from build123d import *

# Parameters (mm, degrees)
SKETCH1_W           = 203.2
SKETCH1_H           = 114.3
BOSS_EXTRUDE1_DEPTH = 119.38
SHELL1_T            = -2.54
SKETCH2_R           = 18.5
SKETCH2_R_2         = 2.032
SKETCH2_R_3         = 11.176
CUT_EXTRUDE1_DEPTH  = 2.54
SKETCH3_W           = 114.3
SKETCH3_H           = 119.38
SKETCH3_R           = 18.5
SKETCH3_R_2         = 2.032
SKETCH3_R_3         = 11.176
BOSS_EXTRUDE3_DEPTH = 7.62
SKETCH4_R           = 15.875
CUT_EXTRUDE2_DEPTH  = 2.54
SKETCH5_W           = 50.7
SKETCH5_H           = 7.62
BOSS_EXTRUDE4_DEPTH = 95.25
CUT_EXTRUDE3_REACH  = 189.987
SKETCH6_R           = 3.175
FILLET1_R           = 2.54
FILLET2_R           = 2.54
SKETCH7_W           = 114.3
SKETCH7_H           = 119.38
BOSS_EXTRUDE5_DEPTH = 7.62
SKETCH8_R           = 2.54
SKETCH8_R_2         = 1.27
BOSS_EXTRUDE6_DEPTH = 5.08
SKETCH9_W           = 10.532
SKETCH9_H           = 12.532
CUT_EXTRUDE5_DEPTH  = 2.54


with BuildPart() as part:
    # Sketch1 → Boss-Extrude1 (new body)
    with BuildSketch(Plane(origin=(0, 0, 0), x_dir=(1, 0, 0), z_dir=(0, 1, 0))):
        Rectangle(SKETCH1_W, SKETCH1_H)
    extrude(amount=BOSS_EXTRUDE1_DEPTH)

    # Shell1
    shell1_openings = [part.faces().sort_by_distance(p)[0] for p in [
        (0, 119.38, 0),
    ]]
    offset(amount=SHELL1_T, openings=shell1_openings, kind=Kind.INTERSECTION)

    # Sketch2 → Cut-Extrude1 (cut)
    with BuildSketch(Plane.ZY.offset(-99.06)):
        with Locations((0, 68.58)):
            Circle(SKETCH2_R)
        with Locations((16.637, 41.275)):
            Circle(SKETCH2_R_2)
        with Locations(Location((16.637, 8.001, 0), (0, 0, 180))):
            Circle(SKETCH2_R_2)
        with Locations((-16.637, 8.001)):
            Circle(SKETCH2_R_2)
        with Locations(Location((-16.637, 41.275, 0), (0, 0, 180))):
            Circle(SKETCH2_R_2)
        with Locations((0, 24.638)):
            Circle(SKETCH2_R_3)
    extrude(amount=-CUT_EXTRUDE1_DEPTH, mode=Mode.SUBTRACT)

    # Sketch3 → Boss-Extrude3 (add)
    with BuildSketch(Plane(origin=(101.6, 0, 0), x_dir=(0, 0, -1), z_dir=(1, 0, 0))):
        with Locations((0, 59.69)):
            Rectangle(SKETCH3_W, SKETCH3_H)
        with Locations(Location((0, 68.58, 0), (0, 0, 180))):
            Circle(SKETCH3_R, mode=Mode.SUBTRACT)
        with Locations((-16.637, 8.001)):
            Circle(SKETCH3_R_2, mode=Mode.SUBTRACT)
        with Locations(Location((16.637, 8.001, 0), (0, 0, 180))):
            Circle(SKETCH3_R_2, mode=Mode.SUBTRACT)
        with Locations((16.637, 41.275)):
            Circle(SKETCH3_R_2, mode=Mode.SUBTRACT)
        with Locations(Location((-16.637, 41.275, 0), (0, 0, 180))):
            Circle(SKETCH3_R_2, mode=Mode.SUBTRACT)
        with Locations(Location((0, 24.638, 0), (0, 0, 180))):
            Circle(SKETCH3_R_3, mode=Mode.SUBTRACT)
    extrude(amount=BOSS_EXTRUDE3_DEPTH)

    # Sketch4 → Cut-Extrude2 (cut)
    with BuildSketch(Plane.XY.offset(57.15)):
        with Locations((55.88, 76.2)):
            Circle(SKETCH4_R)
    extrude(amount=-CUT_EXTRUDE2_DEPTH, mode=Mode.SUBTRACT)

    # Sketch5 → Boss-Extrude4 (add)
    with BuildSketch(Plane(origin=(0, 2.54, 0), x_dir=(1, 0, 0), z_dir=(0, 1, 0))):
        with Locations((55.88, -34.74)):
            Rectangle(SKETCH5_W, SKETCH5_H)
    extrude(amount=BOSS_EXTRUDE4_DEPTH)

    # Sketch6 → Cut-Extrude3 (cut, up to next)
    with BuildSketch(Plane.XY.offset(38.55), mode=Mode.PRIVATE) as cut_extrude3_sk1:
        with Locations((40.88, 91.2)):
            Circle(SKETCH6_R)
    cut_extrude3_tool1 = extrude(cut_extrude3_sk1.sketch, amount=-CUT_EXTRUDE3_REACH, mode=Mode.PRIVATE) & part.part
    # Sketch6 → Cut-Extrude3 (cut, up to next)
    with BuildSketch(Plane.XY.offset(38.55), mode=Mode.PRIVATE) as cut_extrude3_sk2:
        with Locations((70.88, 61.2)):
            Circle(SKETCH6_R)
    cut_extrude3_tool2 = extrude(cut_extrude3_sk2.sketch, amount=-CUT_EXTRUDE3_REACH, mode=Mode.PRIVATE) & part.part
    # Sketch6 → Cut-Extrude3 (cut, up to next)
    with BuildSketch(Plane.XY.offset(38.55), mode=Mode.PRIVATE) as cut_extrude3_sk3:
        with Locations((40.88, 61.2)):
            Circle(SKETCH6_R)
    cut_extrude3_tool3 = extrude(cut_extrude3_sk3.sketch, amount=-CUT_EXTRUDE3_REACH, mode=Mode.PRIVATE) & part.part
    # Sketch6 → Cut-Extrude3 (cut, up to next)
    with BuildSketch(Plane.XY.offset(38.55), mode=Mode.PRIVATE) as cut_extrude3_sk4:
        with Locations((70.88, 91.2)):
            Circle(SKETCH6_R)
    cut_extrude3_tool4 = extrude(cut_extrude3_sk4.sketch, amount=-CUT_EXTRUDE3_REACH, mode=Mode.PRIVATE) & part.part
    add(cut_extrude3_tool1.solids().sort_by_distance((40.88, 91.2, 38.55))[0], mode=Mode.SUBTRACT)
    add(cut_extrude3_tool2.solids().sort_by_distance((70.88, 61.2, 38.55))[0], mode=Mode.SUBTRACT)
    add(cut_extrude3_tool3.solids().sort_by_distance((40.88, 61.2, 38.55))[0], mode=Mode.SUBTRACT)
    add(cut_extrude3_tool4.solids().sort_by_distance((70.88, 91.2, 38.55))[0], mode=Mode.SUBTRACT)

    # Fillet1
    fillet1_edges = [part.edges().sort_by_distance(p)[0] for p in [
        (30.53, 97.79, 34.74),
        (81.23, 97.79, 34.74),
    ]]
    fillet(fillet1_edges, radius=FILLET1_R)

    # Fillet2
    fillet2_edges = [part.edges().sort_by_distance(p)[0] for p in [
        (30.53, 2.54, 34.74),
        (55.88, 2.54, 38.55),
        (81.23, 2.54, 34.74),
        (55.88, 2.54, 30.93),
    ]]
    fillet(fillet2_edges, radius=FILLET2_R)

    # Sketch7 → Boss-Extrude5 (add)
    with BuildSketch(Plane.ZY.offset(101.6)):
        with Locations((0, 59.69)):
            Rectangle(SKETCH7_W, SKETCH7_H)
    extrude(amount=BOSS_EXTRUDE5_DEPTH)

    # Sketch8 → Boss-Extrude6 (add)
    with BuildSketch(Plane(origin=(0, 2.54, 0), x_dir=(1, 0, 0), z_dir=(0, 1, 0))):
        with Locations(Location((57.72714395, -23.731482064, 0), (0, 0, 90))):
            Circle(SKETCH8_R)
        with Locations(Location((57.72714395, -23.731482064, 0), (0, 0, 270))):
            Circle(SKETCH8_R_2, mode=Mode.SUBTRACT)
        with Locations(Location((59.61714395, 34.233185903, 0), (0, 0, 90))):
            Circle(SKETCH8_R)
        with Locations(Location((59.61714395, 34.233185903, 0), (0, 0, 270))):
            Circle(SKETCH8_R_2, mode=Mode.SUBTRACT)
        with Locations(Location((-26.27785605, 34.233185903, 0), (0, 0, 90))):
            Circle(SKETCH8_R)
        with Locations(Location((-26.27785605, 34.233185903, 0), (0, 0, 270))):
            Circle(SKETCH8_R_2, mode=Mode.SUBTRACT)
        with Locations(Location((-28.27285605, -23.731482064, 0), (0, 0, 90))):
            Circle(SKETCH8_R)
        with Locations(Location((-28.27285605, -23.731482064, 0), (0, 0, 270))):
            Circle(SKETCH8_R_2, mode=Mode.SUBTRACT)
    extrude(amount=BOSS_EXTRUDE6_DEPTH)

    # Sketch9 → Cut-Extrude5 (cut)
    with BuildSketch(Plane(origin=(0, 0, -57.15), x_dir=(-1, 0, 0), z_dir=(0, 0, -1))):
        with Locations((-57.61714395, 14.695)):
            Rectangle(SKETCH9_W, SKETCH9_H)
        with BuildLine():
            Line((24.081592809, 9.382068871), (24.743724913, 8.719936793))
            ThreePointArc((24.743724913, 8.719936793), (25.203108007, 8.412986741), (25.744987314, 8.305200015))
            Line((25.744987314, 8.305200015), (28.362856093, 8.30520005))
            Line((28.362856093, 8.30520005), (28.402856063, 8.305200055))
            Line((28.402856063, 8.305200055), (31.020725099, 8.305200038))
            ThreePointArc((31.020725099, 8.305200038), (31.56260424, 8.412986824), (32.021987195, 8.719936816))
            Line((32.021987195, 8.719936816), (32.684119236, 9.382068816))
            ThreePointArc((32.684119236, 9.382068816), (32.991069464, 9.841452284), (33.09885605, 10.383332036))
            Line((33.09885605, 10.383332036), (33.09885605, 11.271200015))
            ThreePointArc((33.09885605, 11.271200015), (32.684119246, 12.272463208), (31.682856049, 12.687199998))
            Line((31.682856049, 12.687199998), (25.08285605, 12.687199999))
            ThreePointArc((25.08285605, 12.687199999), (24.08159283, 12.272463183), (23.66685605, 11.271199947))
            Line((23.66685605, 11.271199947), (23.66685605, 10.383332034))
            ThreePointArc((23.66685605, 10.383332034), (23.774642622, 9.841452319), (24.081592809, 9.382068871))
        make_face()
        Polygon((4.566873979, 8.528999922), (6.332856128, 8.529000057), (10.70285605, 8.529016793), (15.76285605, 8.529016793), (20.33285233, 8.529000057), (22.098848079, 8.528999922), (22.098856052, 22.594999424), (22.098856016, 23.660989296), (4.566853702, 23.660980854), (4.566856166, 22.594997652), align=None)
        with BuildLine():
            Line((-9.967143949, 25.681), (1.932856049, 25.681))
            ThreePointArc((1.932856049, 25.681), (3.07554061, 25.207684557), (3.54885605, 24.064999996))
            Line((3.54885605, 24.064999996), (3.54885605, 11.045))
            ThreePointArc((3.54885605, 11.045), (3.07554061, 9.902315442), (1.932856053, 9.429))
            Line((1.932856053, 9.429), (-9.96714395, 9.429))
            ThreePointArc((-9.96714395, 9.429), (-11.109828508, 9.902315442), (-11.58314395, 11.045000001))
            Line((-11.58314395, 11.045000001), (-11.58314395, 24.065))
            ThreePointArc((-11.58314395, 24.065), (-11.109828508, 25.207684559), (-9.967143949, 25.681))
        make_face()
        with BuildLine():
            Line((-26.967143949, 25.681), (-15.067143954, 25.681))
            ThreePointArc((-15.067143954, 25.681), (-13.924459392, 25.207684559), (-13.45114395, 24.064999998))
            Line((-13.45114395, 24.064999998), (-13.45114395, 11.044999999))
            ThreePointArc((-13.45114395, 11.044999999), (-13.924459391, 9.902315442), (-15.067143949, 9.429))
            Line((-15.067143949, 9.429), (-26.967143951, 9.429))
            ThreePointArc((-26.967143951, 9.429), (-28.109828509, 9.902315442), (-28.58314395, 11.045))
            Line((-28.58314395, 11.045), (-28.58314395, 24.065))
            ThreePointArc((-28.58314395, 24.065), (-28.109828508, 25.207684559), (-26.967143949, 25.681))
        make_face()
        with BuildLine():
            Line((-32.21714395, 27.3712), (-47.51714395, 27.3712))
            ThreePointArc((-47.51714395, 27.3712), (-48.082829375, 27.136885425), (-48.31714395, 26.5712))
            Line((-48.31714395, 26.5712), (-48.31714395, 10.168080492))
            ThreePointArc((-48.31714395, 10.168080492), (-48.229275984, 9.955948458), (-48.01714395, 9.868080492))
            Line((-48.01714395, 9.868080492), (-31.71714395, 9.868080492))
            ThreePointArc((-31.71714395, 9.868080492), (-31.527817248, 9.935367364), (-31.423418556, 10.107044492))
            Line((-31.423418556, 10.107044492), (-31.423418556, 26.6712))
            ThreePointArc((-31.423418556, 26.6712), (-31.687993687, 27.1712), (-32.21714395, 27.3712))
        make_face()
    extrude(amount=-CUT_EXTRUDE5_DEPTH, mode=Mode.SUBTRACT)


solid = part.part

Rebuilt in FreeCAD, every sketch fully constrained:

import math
import FreeCAD as App
import Part
import Sketcher

V = App.Vector
Q = App.Units.Quantity


def edges_at(feature, points):
    """Names of the edges that pass closest to the given points."""
    edges = feature.Shape.Edges
    near = lambda p: min(range(len(edges)), key=lambda i: edges[i].distToShape(Part.Vertex(*p))[0])
    return sorted({f"Edge{near(p) + 1}" for p in points})


def faces_at(feature, points):
    """Names of the faces that lie closest to the given points."""
    faces = feature.Shape.Faces
    near = lambda p: min(range(len(faces)), key=lambda i: faces[i].distToShape(Part.Vertex(*p))[0])
    return sorted({f"Face{near(p) + 1}" for p in points})


def add_polygon(sketch, points):
    """Adds a closed chain of lines whose ends are joined by coincident constraints."""
    first, n = sketch.GeometryCount, len(points)
    for a, b in zip(points, points[1:] + points[:1]):
        sketch.addGeometry(Part.LineSegment(App.Vector(*a, 0), App.Vector(*b, 0)), False)
    for i in range(n):
        sketch.addConstraint(Sketcher.Constraint("Coincident", first + i, 2, first + (i + 1) % n, 1))

doc = App.newDocument("Part")
body = doc.addObject("PartDesign::Body", "Body")

sketch1 = doc.addObject("Sketcher::SketchObject", "Sketch")
body.addObject(sketch1)
sketch1.AttachmentSupport = (doc.XZ_Plane, [""])
sketch1.MapMode = "FlatFace"
add_polygon(sketch1, [(-102, -57), (-102, 57), (102, 57), (102, -57)])
sketch1.addConstraint([
    Sketcher.Constraint("Vertical", 0),
    Sketcher.Constraint("Horizontal", 1),
    Sketcher.Constraint("Vertical", 2),
    Sketcher.Constraint("Horizontal", 3),
    Sketcher.Constraint("Symmetric", 0, 2, 2, 2, -1, 1),
    Sketcher.Constraint("DistanceX", 1, 1, 1, 2, Q("8 in")),
    Sketcher.Constraint("DistanceY", 0, 1, 0, 2, Q("4.5 in")),
])
pad1 = doc.addObject("PartDesign::Pad", "Pad")
body.addObject(pad1)
pad1.Profile = sketch1
pad1.Length = Q("4.7 in")
pad1.Reversed = True
doc.recompute()

thickness = doc.addObject("PartDesign::Thickness", "Thickness")
body.addObject(thickness)
thickness.Base = (pad1, faces_at(pad1, [(0, 119.38, 0)]))
thickness.Value = Q("0.1 in")
thickness.Reversed = True
thickness.Join = "Intersection"

sketch2 = doc.addObject("Sketcher::SketchObject", "Sketch001")
body.addObject(sketch2)
sketch2.AttachmentSupport = (doc.YZ_Plane, [""])
sketch2.MapMode = "FlatFace"
sketch2.AttachmentOffset = App.Placement(V(0, 0, 3.9 * 25.4), App.Rotation())
sketch2.addGeometry([
    Part.Circle(V(68.6, 0, 0), V(0, 0, 1), 18.5),
    Part.Circle(V(41.3, 16.6, 0), V(0, 0, 1), 2),
    Part.Circle(V(8, 16.6, 0), V(0, 0, 1), 2),
    Part.Circle(V(8, -16.6, 0), V(0, 0, 1), 2),
    Part.Circle(V(41.3, -16.6, 0), V(0, 0, 1), 2),
    Part.Circle(V(24.6, 0, 0), V(0, 0, 1), 11.2),
], False)
sketch2.addConstraint([
    Sketcher.Constraint("Equal", 1, 2),
    Sketcher.Constraint("Equal", 2, 3),
    Sketcher.Constraint("Equal", 3, 4),
    Sketcher.Constraint("Symmetric", 2, 3, 3, 3, -1),
    Sketcher.Constraint("Symmetric", 1, 3, 4, 3, -1),
    Sketcher.Constraint("PointOnObject", 0, 3, -1),
    Sketcher.Constraint("PointOnObject", 5, 3, -1),
    Sketcher.Constraint("Horizontal", 1, 3, 2, 3),
    Sketcher.Constraint("Diameter", 1, Q("0.16 in")),
    Sketcher.Constraint("Diameter", 5, Q("0.88 in")),
    Sketcher.Constraint("DistanceX", -1, 1, 0, 3, Q("2.7 in")),
    Sketcher.Constraint("Diameter", 0, 37.0),
    Sketcher.Constraint("DistanceX", -1, 1, 5, 3, Q("0.97 in")),
    Sketcher.Constraint("DistanceX", 2, 3, 1, 3, Q("1.31 in")),
    Sketcher.Constraint("DistanceY", 3, 3, 2, 3, Q("1.31 in")),
    Sketcher.Constraint("DistanceX", -1, 1, 1, 3, Q("1.625 in")),
])
pocket1 = doc.addObject("PartDesign::Pocket", "Pocket")
body.addObject(pocket1)
pocket1.Profile = sketch2
pocket1.Length = Q("0.1 in")
pocket1.Reversed = True

sketch3 = doc.addObject("Sketcher::SketchObject", "Sketch002")
body.addObject(sketch3)
sketch3.AttachmentSupport = (doc.YZ_Plane, [""])
sketch3.MapMode = "FlatFace"
sketch3.AttachmentOffset = App.Placement(V(0, 0, 4 * 25.4), App.Rotation())
add_polygon(sketch3, [(119.4, 57.1), (0, 57.1), (0, -57.1), (119.4, -57.1)])
sketch3.addGeometry(Part.Circle(V(8, 16.6, 0), V(0, 0, 1), 2), False)
sketch3.addGeometry(Part.Circle(V(41.3, 16.6, 0), V(0, 0, 1), 2), False)
sketch3.addGeometry(Part.Circle(V(24.6, 0, 0), V(0, 0, 1), 11.2), False)
sketch3.addGeometry(Part.Circle(V(8, -16.6, 0), V(0, 0, 1), 2), False)
sketch3.addGeometry(Part.Circle(V(41.3, -16.6, 0), V(0, 0, 1), 2), False)
sketch3.addGeometry(Part.Circle(V(68.6, 0, 0), V(0, 0, 1), 18.5), False)
sketch3.addConstraint([
    Sketcher.Constraint("Horizontal", 0),
    Sketcher.Constraint("Vertical", 1),
    Sketcher.Constraint("Horizontal", 2),
    Sketcher.Constraint("Vertical", 3),
    Sketcher.Constraint("Equal", 4, 5),
    Sketcher.Constraint("Equal", 5, 7),
    Sketcher.Constraint("Equal", 7, 8),
    Sketcher.Constraint("Symmetric", 0, 2, 1, 2, -1, 1),
    Sketcher.Constraint("Symmetric", 4, 3, 7, 3, -1),
    Sketcher.Constraint("Symmetric", 5, 3, 8, 3, -1),
    Sketcher.Constraint("PointOnObject", 6, 3, -1),
    Sketcher.Constraint("PointOnObject", 9, 3, -1),
    Sketcher.Constraint("Horizontal", 4, 3, 5, 3),
    Sketcher.Constraint("Diameter", 4, Q("0.16 in")),
    Sketcher.Constraint("Diameter", 6, Q("0.88 in")),
    Sketcher.Constraint("DistanceX", 0, 2, 0, 1, Q("4.7 in")),
    Sketcher.Constraint("DistanceY", 1, 2, 1, 1, Q("4.5 in")),
    Sketcher.Constraint("DistanceX", 9, 3, 2, 2, Q("2 in")),
    Sketcher.Constraint("Diameter", 9, 37.0),
    Sketcher.Constraint("DistanceX", -1, 1, 6, 3, Q("0.97 in")),
    Sketcher.Constraint("DistanceX", 4, 3, 5, 3, Q("1.31 in")),
    Sketcher.Constraint("DistanceY", 7, 3, 4, 3, Q("1.31 in")),
    Sketcher.Constraint("DistanceX", -1, 1, 4, 3, Q("0.315 in")),
])
pad2 = doc.addObject("PartDesign::Pad", "Pad001")
body.addObject(pad2)
pad2.Profile = sketch3
pad2.Length = Q("0.3 in")

sketch4 = doc.addObject("Sketcher::SketchObject", "Sketch003")
body.addObject(sketch4)
sketch4.AttachmentSupport = (doc.XY_Plane, [""])
sketch4.MapMode = "FlatFace"
sketch4.AttachmentOffset = App.Placement(V(0, 0, 2.25 * 25.4), App.Rotation())
sketch4.addGeometry(Part.Circle(V(56, 76, 0), V(0, 0, 1), 16), False)
sketch4.addConstraint([
    Sketcher.Constraint("Diameter", 0, Q("1.25 in")),
    Sketcher.Constraint("DistanceY", -1, 1, 0, 3, Q("3 in")),
    Sketcher.Constraint("DistanceX", -1, 1, 0, 3, Q("2.2 in")),
])
pocket2 = doc.addObject("PartDesign::Pocket", "Pocket001")
body.addObject(pocket2)
pocket2.Profile = sketch4
pocket2.Length = Q("0.1 in")

sketch5 = doc.addObject("Sketcher::SketchObject", "Sketch004")
body.addObject(sketch5)
sketch5.AttachmentSupport = (doc.XZ_Plane, [""])
sketch5.MapMode = "FlatFace"
sketch5.AttachmentOffset = App.Placement(V(0, 0, -0.1 * 25.4), App.Rotation())
add_polygon(sketch5, [(31, 31), (31, 39), (81, 39), (81, 31)])
sketch5.addConstraint([
    Sketcher.Constraint("Vertical", 0),
    Sketcher.Constraint("Horizontal", 1),
    Sketcher.Constraint("Vertical", 2),
    Sketcher.Constraint("Horizontal", 3),
    Sketcher.Constraint("DistanceY", 0, 1, 0, 2, Q("0.3 in")),
    Sketcher.Constraint("DistanceX", 1, 1, 1, 2, 50.7),
    Sketcher.Constraint("DistanceX", -1, 1, 0, 2, 30.53),
    Sketcher.Constraint("DistanceY", -1, 1, 0, 2, 38.55),
])
pad3 = doc.addObject("PartDesign::Pad", "Pad002")
body.addObject(pad3)
pad3.Profile = sketch5
pad3.Length = Q("3.75 in")
pad3.Reversed = True

sketch6 = doc.addObject("Sketcher::SketchObject", "Sketch005")
body.addObject(sketch6)
sketch6.AttachmentSupport = (doc.XY_Plane, [""])
sketch6.MapMode = "FlatFace"
sketch6.AttachmentOffset = App.Placement(V(0, 0, 38.55), App.Rotation())
sketch6.addGeometry(Part.Circle(V(40.9, 91.2, 0), V(0, 0, 1), 3.2), False)
sketch6.addConstraint([
    Sketcher.Constraint("Diameter", 0, Q("0.25 in")),
    Sketcher.Constraint("DistanceX", -1, 1, 0, 3, 40.88),
    Sketcher.Constraint("DistanceY", -1, 1, 0, 3, 91.2),
])
pocket3 = doc.addObject("PartDesign::Pocket", "Pocket002")
body.addObject(pocket3)
pocket3.Profile = sketch6
pocket3.Type = "UpToFirst"

sketch7 = doc.addObject("Sketcher::SketchObject", "Sketch006")
body.addObject(sketch7)
sketch7.AttachmentSupport = (doc.XY_Plane, [""])
sketch7.MapMode = "FlatFace"
sketch7.AttachmentOffset = App.Placement(V(0, 0, 38.55), App.Rotation())
sketch7.addGeometry(Part.Circle(V(70.9, 61.2, 0), V(0, 0, 1), 3.2), False)
sketch7.addConstraint([
    Sketcher.Constraint("Diameter", 0, Q("0.25 in")),
    Sketcher.Constraint("DistanceX", -1, 1, 0, 3, 70.88),
    Sketcher.Constraint("DistanceY", -1, 1, 0, 3, 61.2),
])
pocket4 = doc.addObject("PartDesign::Pocket", "Pocket003")
body.addObject(pocket4)
pocket4.Profile = sketch7
pocket4.Type = "UpToFirst"

sketch8 = doc.addObject("Sketcher::SketchObject", "Sketch007")
body.addObject(sketch8)
sketch8.AttachmentSupport = (doc.XY_Plane, [""])
sketch8.MapMode = "FlatFace"
sketch8.AttachmentOffset = App.Placement(V(0, 0, 38.55), App.Rotation())
sketch8.addGeometry(Part.Circle(V(40.9, 61.2, 0), V(0, 0, 1), 3.2), False)
sketch8.addConstraint([
    Sketcher.Constraint("Diameter", 0, Q("0.25 in")),
    Sketcher.Constraint("DistanceX", -1, 1, 0, 3, 40.88),
    Sketcher.Constraint("DistanceY", -1, 1, 0, 3, 61.2),
])
pocket5 = doc.addObject("PartDesign::Pocket", "Pocket004")
body.addObject(pocket5)
pocket5.Profile = sketch8
pocket5.Type = "UpToFirst"

sketch9 = doc.addObject("Sketcher::SketchObject", "Sketch008")
body.addObject(sketch9)
sketch9.AttachmentSupport = (doc.XY_Plane, [""])
sketch9.MapMode = "FlatFace"
sketch9.AttachmentOffset = App.Placement(V(0, 0, 38.55), App.Rotation())
sketch9.addGeometry(Part.Circle(V(70.9, 91.2, 0), V(0, 0, 1), 3.2), False)
sketch9.addConstraint([
    Sketcher.Constraint("Diameter", 0, Q("0.25 in")),
    Sketcher.Constraint("DistanceX", -1, 1, 0, 3, 70.88),
    Sketcher.Constraint("DistanceY", -1, 1, 0, 3, 91.2),
])
pocket6 = doc.addObject("PartDesign::Pocket", "Pocket005")
body.addObject(pocket6)
pocket6.Profile = sketch9
pocket6.Type = "UpToFirst"
doc.recompute()

fillet = doc.addObject("PartDesign::Fillet", "Fillet")
body.addObject(fillet)
fillet.Base = (pocket6, edges_at(pocket6, [(30.53, 97.79, 34.74), (81.23, 97.79, 34.74)]))
fillet.Radius = Q("0.1 in")
doc.recompute()

fillet2 = doc.addObject("PartDesign::Fillet", "Fillet001")
body.addObject(fillet2)
fillet2.Base = (fillet, edges_at(fillet, [
    (30.53, 2.54, 34.74),
    (55.88, 2.54, 38.55),
    (81.23, 2.54, 34.74),
    (55.88, 2.54, 30.93),
]))
fillet2.Radius = Q("0.1 in")

sketch10 = doc.addObject("Sketcher::SketchObject", "Sketch009")
body.addObject(sketch10)
sketch10.AttachmentSupport = (doc.YZ_Plane, [""])
sketch10.MapMode = "FlatFace"
sketch10.AttachmentOffset = App.Placement(V(0, 0, -4 * 25.4), App.Rotation())
add_polygon(sketch10, [(119, -57), (0, -57), (0, 57), (119, 57)])
sketch10.addConstraint([
    Sketcher.Constraint("Horizontal", 0),
    Sketcher.Constraint("Vertical", 1),
    Sketcher.Constraint("Horizontal", 2),
    Sketcher.Constraint("Vertical", 3),
    Sketcher.Constraint("Symmetric", 0, 2, 1, 2, -1, 1),
    Sketcher.Constraint("DistanceX", 0, 2, 0, 1, Q("4.7 in")),
    Sketcher.Constraint("DistanceY", 1, 1, 1, 2, Q("4.5 in")),
])
pad4 = doc.addObject("PartDesign::Pad", "Pad003")
body.addObject(pad4)
pad4.Profile = sketch10
pad4.Length = Q("0.3 in")
pad4.Reversed = True

sketch11 = doc.addObject("Sketcher::SketchObject", "Sketch010")
body.addObject(sketch11)
sketch11.AttachmentSupport = (doc.XZ_Plane, [""])
sketch11.MapMode = "FlatFace"
sketch11.AttachmentOffset = App.Placement(V(0, 0, -0.1 * 25.4), App.Rotation())
sketch11.addGeometry([
    Part.Circle(V(57.7, 23.7, 0), V(0, 0, 1), 2.5),
    Part.Circle(V(57.7, 23.7, 0), V(0, 0, 1), 1.3),
    Part.Circle(V(59.6, -34.2, 0), V(0, 0, 1), 2.5),
    Part.Circle(V(59.6, -34.2, 0), V(0, 0, 1), 1.3),
    Part.Circle(V(-26.3, -34.2, 0), V(0, 0, 1), 2.5),
    Part.Circle(V(-26.3, -34.2, 0), V(0, 0, 1), 1.3),
    Part.Circle(V(-28.3, 23.7, 0), V(0, 0, 1), 2.5),
    Part.Circle(V(-28.3, 23.7, 0), V(0, 0, 1), 1.3),
], False)
sketch11.addConstraint([
    Sketcher.Constraint("Coincident", 1, 3, 0, 3),
    Sketcher.Constraint("Coincident", 3, 3, 2, 3),
    Sketcher.Constraint("Coincident", 5, 3, 4, 3),
    Sketcher.Constraint("Coincident", 7, 3, 6, 3),
    Sketcher.Constraint("Equal", 0, 2),
    Sketcher.Constraint("Equal", 1, 3),
    Sketcher.Constraint("Equal", 2, 4),
    Sketcher.Constraint("Equal", 3, 5),
    Sketcher.Constraint("Equal", 4, 6),
    Sketcher.Constraint("Equal", 5, 7),
    Sketcher.Constraint("Horizontal", 3, 3, 4, 3),
    Sketcher.Constraint("Horizontal", 1, 3, 6, 3),
    Sketcher.Constraint("Diameter", 0, Q("0.2 in")),
    Sketcher.Constraint("Diameter", 1, Q("0.1 in")),
    Sketcher.Constraint("DistanceX", 0, 3, 2, 3, 1.89),
    Sketcher.Constraint("DistanceX", 4, 3, 2, 3, 85.895),
    Sketcher.Constraint("DistanceX", 6, 3, 4, 3, 1.995),
    Sketcher.Constraint("DistanceX", -1, 1, 0, 3, 57.727144),
    Sketcher.Constraint("DistanceY", -1, 1, 0, 3, 23.731482),
    Sketcher.Constraint("DistanceY", 2, 3, -1, 1, 34.233186),
])
pad5 = doc.addObject("PartDesign::Pad", "Pad004")
body.addObject(pad5)
pad5.Profile = sketch11
pad5.Length = Q("0.2 in")
pad5.Reversed = True

sketch12 = doc.addObject("Sketcher::SketchObject", "Sketch011")
body.addObject(sketch12)
sketch12.AttachmentSupport = (doc.XY_Plane, [""])
sketch12.MapMode = "FlatFace"
sketch12.AttachmentOffset = App.Placement(V(0, 0, -2.25 * 25.4), App.Rotation())
add_polygon(sketch12, [(62.883, 20.961), (62.883, 8.429), (52.351, 8.429), (52.351, 20.961)])
sketch12.addGeometry(Part.LineSegment(V(-24.082, 9.382, 0), V(-24.744, 8.72, 0)), False)
sketch12.addGeometry(Part.ArcOfCircle(Part.Circle(V(-25.745, 9.721, 0), V(0, 0, 1), 1.416), math.radians(-90), math.radians(-45)), False)
sketch12.addGeometry(Part.LineSegment(V(-25.745, 8.305, 0), V(-28.363, 8.305, 0)), False)
sketch12.addGeometry(Part.LineSegment(V(-28.363, 8.305, 0), V(-28.403, 8.305, 0)), False)
sketch12.addGeometry(Part.LineSegment(V(-28.403, 8.305, 0), V(-31.021, 8.305, 0)), False)
sketch12.addGeometry(Part.ArcOfCircle(Part.Circle(V(-31.021, 9.721, 0), V(0, 0, 1), 1.416), math.radians(-135), math.radians(-90)), False)
sketch12.addGeometry(Part.LineSegment(V(-32.022, 8.72, 0), V(-32.684, 9.382, 0)), False)
sketch12.addGeometry(Part.ArcOfCircle(Part.Circle(V(-31.683, 10.383, 0), V(0, 0, 1), 1.416), math.radians(180), math.radians(225)), False)
sketch12.addGeometry(Part.LineSegment(V(-33.099, 10.383, 0), V(-33.099, 11.271, 0)), False)
sketch12.addGeometry(Part.ArcOfCircle(Part.Circle(V(-31.683, 11.271, 0), V(0, 0, 1), 1.416), math.radians(90), math.radians(180)), False)
sketch12.addGeometry(Part.LineSegment(V(-31.683, 12.687, 0), V(-25.083, 12.687, 0)), False)
sketch12.addGeometry(Part.ArcOfCircle(Part.Circle(V(-25.083, 11.271, 0), V(0, 0, 1), 1.416), math.radians(0), math.radians(90)), False)
sketch12.addGeometry(Part.LineSegment(V(-23.667, 11.271, 0), V(-23.667, 10.383, 0)), False)
sketch12.addGeometry(Part.ArcOfCircle(Part.Circle(V(-25.083, 10.383, 0), V(0, 0, 1), 1.416), math.radians(-45), math.radians(0)), False)
add_polygon(sketch12, [(-4.567, 8.529), (-6.333, 8.529), (-10.703, 8.529), (-15.763, 8.529), (-20.333, 8.529), (-22.099, 8.529), (-22.099, 22.595), (-22.099, 23.661), (-4.567, 23.661), (-4.567, 22.595)])
sketch12.addGeometry(Part.LineSegment(V(-1.933, 25.681, 0), V(9.967, 25.681, 0)), False)
sketch12.addGeometry(Part.ArcOfCircle(Part.Circle(V(9.967, 24.065, 0), V(0, 0, 1), 1.616), math.radians(0), math.radians(90)), False)
sketch12.addGeometry(Part.LineSegment(V(11.583, 24.065, 0), V(11.583, 11.045, 0)), False)
sketch12.addGeometry(Part.ArcOfCircle(Part.Circle(V(9.967, 11.045, 0), V(0, 0, 1), 1.616), math.radians(-90), math.radians(0)), False)
sketch12.addGeometry(Part.LineSegment(V(9.967, 9.429, 0), V(-1.933, 9.429, 0)), False)
sketch12.addGeometry(Part.ArcOfCircle(Part.Circle(V(-1.933, 11.045, 0), V(0, 0, 1), 1.616), math.radians(180), math.radians(270)), False)
sketch12.addGeometry(Part.LineSegment(V(-3.549, 11.045, 0), V(-3.549, 24.065, 0)), False)
sketch12.addGeometry(Part.ArcOfCircle(Part.Circle(V(-1.933, 24.065, 0), V(0, 0, 1), 1.616), math.radians(90), math.radians(180)), False)
sketch12.addGeometry(Part.LineSegment(V(15.067, 25.681, 0), V(26.967, 25.681, 0)), False)
sketch12.addGeometry(Part.ArcOfCircle(Part.Circle(V(26.967, 24.065, 0), V(0, 0, 1), 1.616), math.radians(0), math.radians(90)), False)
sketch12.addGeometry(Part.LineSegment(V(28.583, 24.065, 0), V(28.583, 11.045, 0)), False)
sketch12.addGeometry(Part.ArcOfCircle(Part.Circle(V(26.967, 11.045, 0), V(0, 0, 1), 1.616), math.radians(-90), math.radians(0)), False)
sketch12.addGeometry(Part.LineSegment(V(26.967, 9.429, 0), V(15.067, 9.429, 0)), False)
sketch12.addGeometry(Part.ArcOfCircle(Part.Circle(V(15.067, 11.045, 0), V(0, 0, 1), 1.616), math.radians(-180), math.radians(-90)), False)
sketch12.addGeometry(Part.LineSegment(V(13.451, 11.045, 0), V(13.451, 24.065, 0)), False)
sketch12.addGeometry(Part.ArcOfCircle(Part.Circle(V(15.067, 24.065, 0), V(0, 0, 1), 1.616), math.radians(90), math.radians(180)), False)
sketch12.addGeometry(Part.LineSegment(V(32.217, 27.371, 0), V(47.517, 27.371, 0)), False)
sketch12.addGeometry(Part.ArcOfCircle(Part.Circle(V(47.517, 26.571, 0), V(0, 0, 1), 0.8), math.radians(0), math.radians(90)), False)
sketch12.addGeometry(Part.LineSegment(V(48.317, 26.571, 0), V(48.317, 10.168, 0)), False)
sketch12.addGeometry(Part.ArcOfCircle(Part.Circle(V(48.017, 10.168, 0), V(0, 0, 1), 0.3), math.radians(-90), math.radians(0)), False)
sketch12.addGeometry(Part.LineSegment(V(48.017, 9.868, 0), V(31.717, 9.868, 0)), False)
sketch12.addGeometry(Part.ArcOfCircle(Part.Circle(V(31.717, 10.168, 0), V(0, 0, 1), 0.3), math.radians(-168), math.radians(-90)), False)
sketch12.addGeometry(Part.LineSegment(V(31.423, 10.107, 0), V(31.423, 26.671, 0)), False)
sketch12.addGeometry(Part.ArcOfCircle(Part.Circle(V(32.217, 26.571, 0), V(0, 0, 1), 0.8), math.radians(90), math.radians(173)), False)
sketch12.addConstraint([
    Sketcher.Constraint("Tangent", 4, 2, 5, 2),
    Sketcher.Constraint("Tangent", 5, 1, 6, 1),
    Sketcher.Constraint("Coincident", 6, 2, 7, 1),
    Sketcher.Constraint("Coincident", 7, 2, 8, 1),
    Sketcher.Constraint("Tangent", 8, 2, 9, 2),
    Sketcher.Constraint("Tangent", 9, 1, 10, 1),
    Sketcher.Constraint("Tangent", 10, 2, 11, 2),
    Sketcher.Constraint("Tangent", 11, 1, 12, 1),
    Sketcher.Constraint("Tangent", 12, 2, 13, 2),
    Sketcher.Constraint("Tangent", 13, 1, 14, 1),
    Sketcher.Constraint("Tangent", 14, 2, 15, 2),
    Sketcher.Constraint("Tangent", 15, 1, 16, 1),
    Sketcher.Constraint("Tangent", 16, 2, 17, 2),
    Sketcher.Constraint("Tangent", 17, 1, 4, 1),
    Sketcher.Constraint("Tangent", 28, 2, 29, 2),
    Sketcher.Constraint("Tangent", 29, 1, 30, 1),
    Sketcher.Constraint("Tangent", 30, 2, 31, 2),
    Sketcher.Constraint("Tangent", 31, 1, 32, 1),
    Sketcher.Constraint("Tangent", 32, 2, 33, 2),
    Sketcher.Constraint("Tangent", 33, 1, 34, 1),
    Sketcher.Constraint("Tangent", 34, 2, 35, 2),
    Sketcher.Constraint("Tangent", 35, 1, 28, 1),
    Sketcher.Constraint("Tangent", 36, 2, 37, 2),
    Sketcher.Constraint("Tangent", 37, 1, 38, 1),
    Sketcher.Constraint("Tangent", 38, 2, 39, 2),
    Sketcher.Constraint("Tangent", 39, 1, 40, 1),
    Sketcher.Constraint("Tangent", 40, 2, 41, 2),
    Sketcher.Constraint("Tangent", 41, 1, 42, 1),
    Sketcher.Constraint("Tangent", 42, 2, 43, 2),
    Sketcher.Constraint("Tangent", 43, 1, 36, 1),
    Sketcher.Constraint("Tangent", 44, 2, 45, 2),
    Sketcher.Constraint("Tangent", 45, 1, 46, 1),
    Sketcher.Constraint("Tangent", 46, 2, 47, 2),
    Sketcher.Constraint("Tangent", 47, 1, 48, 1),
    Sketcher.Constraint("Tangent", 48, 2, 49, 2),
    Sketcher.Constraint("Coincident", 49, 1, 50, 1),
    Sketcher.Constraint("Coincident", 50, 2, 51, 2),
    Sketcher.Constraint("Tangent", 51, 1, 44, 1),
    Sketcher.Constraint("Vertical", 0),
    Sketcher.Constraint("Horizontal", 1),
    Sketcher.Constraint("Vertical", 2),
    Sketcher.Constraint("Horizontal", 3),
    Sketcher.Constraint("Horizontal", 6),
    Sketcher.Constraint("Horizontal", 7),
    Sketcher.Constraint("Horizontal", 8),
    Sketcher.Constraint("Vertical", 12),
    Sketcher.Constraint("Horizontal", 14),
    Sketcher.Constraint("Vertical", 16),
    Sketcher.Constraint("Horizontal", 18),
    Sketcher.Constraint("Horizontal", 20),
    Sketcher.Constraint("Horizontal", 22),
    Sketcher.Constraint("Vertical", 24),
    Sketcher.Constraint("Horizontal", 28),
    Sketcher.Constraint("Vertical", 30),
    Sketcher.Constraint("Horizontal", 32),
    Sketcher.Constraint("Vertical", 34),
    Sketcher.Constraint("Horizontal", 36),
    Sketcher.Constraint("Vertical", 38),
    Sketcher.Constraint("Horizontal", 40),
    Sketcher.Constraint("Vertical", 42),
    Sketcher.Constraint("Horizontal", 44),
    Sketcher.Constraint("Vertical", 46),
    Sketcher.Constraint("Horizontal", 48),
    Sketcher.Constraint("Vertical", 50),
    Sketcher.Constraint("Equal", 5, 9),
    Sketcher.Constraint("Equal", 9, 11),
    Sketcher.Constraint("Equal", 11, 13),
    Sketcher.Constraint("Equal", 13, 15),
    Sketcher.Constraint("Equal", 15, 17),
    Sketcher.Constraint("Equal", 29, 31),
    Sketcher.Constraint("Equal", 31, 33),
    Sketcher.Constraint("Equal", 33, 35),
    Sketcher.Constraint("Equal", 35, 37),
    Sketcher.Constraint("Equal", 37, 39),
    Sketcher.Constraint("Equal", 39, 41),
    Sketcher.Constraint("Equal", 41, 43),
    Sketcher.Constraint("Equal", 47, 49),
    Sketcher.Constraint("Equal", 45, 51),
    Sketcher.Constraint("Perpendicular", 4, 10),
    Sketcher.Constraint("Perpendicular", 23, 25),
    Sketcher.Constraint("Perpendicular", 25, 26),
    Sketcher.Constraint("Parallel", 26, 27),
    Sketcher.Constraint("Horizontal", 11, 3, 17, 3),
    Sketcher.Constraint("Horizontal", 35, 3, 37, 3),
    Sketcher.Constraint("Horizontal", 33, 3, 39, 3),
    Sketcher.Constraint("Horizontal", 4, 2, 9, 1),
    Sketcher.Constraint("Horizontal", 18, 2, 21, 2),
    Sketcher.Constraint("Horizontal", 23, 2, 26, 2),
    Sketcher.Constraint("Equal", 6, 8),
    Sketcher.Constraint("Equal", 32, 36),
    Sketcher.Constraint("Radius", 5, 1.416),
    Sketcher.Constraint("Radius", 29, 1.616),
    Sketcher.Constraint("Radius", 45, 0.8),
    Sketcher.Constraint("Radius", 47, 0.3),
    Sketcher.Constraint("DistanceX", 1, 2, 1, 1, 10.532),
    Sketcher.Constraint("DistanceX", 7, 2, 7, 1, 0.04),
    Sketcher.Constraint("DistanceX", 14, 1, 14, 2, 6.6),
    Sketcher.Constraint("DistanceX", 20, 2, 20, 1, 5.06),
    Sketcher.Constraint("DistanceX", 28, 1, 28, 2, 11.9),
    Sketcher.Constraint("DistanceX", 44, 1, 44, 2, 15.3),
    Sketcher.Constraint("DistanceX", 48, 2, 48, 1, 16.3),
    Sketcher.Constraint("DistanceY", 0, 2, 0, 1, 12.532),
    Sketcher.Constraint("DistanceY", 30, 2, 30, 1, 13.02),
    Sketcher.Constraint("Distance", 19, 4.37),
    Sketcher.Constraint("Distance", 23, 14.066),
    Sketcher.Constraint("DistanceX", 6, 2, 6, 1, 2.617869),
    Sketcher.Constraint("DistanceY", 24, 1, 24, 2, 1.06599),
    Sketcher.Constraint("DistanceY", 46, 2, 46, 1, 16.40312),
    Sketcher.Constraint("DistanceY", -1, 1, 5, 3, 9.7212),
    Sketcher.Constraint("DistanceY", -1, 1, 13, 3, 11.2712),
    Sketcher.Constraint("DistanceY", -1, 1, 29, 3, 24.065),
    Sketcher.Constraint("DistanceY", -1, 1, 45, 3, 26.5712),
    Sketcher.Constraint("DistanceY", -1, 1, 0, 2, 8.429),
    Sketcher.Constraint("DistanceY", -1, 1, 18, 2, 8.529),
    Sketcher.Constraint("DistanceY", -1, 1, 50, 2, 26.6712),
    Sketcher.Constraint("DistanceX", 18, 2, 18, 1, 1.765982),
    Sketcher.Constraint("DistanceX", 22, 2, 22, 1, 1.765996),
    Sketcher.Constraint("DistanceX", 5, 3, -1, 1, 25.744988),
    Sketcher.Constraint("DistanceX", 22, 2, -1, 1, 22.098848),
    Sketcher.Constraint("DistanceY", -1, 1, 25, 2, 23.660981),
    Sketcher.Constraint("DistanceX", -1, 1, 49, 1, 31.423419),
    Sketcher.Constraint("Distance", 21, 4.569996),
    Sketcher.Constraint("DistanceX", -1, 1, 29, 3, 9.967144),
    Sketcher.Constraint("DistanceX", -1, 1, 37, 3, 26.967144),
    Sketcher.Constraint("DistanceX", -1, 1, 0, 2, 62.883144),
    Sketcher.Constraint("DistanceY", -1, 1, 19, 2, 8.529017),
])
pocket7 = doc.addObject("PartDesign::Pocket", "Pocket006")
body.addObject(pocket7)
pocket7.Profile = sketch12
pocket7.Length = Q("0.1 in")
pocket7.Reversed = True

doc.recompute()
